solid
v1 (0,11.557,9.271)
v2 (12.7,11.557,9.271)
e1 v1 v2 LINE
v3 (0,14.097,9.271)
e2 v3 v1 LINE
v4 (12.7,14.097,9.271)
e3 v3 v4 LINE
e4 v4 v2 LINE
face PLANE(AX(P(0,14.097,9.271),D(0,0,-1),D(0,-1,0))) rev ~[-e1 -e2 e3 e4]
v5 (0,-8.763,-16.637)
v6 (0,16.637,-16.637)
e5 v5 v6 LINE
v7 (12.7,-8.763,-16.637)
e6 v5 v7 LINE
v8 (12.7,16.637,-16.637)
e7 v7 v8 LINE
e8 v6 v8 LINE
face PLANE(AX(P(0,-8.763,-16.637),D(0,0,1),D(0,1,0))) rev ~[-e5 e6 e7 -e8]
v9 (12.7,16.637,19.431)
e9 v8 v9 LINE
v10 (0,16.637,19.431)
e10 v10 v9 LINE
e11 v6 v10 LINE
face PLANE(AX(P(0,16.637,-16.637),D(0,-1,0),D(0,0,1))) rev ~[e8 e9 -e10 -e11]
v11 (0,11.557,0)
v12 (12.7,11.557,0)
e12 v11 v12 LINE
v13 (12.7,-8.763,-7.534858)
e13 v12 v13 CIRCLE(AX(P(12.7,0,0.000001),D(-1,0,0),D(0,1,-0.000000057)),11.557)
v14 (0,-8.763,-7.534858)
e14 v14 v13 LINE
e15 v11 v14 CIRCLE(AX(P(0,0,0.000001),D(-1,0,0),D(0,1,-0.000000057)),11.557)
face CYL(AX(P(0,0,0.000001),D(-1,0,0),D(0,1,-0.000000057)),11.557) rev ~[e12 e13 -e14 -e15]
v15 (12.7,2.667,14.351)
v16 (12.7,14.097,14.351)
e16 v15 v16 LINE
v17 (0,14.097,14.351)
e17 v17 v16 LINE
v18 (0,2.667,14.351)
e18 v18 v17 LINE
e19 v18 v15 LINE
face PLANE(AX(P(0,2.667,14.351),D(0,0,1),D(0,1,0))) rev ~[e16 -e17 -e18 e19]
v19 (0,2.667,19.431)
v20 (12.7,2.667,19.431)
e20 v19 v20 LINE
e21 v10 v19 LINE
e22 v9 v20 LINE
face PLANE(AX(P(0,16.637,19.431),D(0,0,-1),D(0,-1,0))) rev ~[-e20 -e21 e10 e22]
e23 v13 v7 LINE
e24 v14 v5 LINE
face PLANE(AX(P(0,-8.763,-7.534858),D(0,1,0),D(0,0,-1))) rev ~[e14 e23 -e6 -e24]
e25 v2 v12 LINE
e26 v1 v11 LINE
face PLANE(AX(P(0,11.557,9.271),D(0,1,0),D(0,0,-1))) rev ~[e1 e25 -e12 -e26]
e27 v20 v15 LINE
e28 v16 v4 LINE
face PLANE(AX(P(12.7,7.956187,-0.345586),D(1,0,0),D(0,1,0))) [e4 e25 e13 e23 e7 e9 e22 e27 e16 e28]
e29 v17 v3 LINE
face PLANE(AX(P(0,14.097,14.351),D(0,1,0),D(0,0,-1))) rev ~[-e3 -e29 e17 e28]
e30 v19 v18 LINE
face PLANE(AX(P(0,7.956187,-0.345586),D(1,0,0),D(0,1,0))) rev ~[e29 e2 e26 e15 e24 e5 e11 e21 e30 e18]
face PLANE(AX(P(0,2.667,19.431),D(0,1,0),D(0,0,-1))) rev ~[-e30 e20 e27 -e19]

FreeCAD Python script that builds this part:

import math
import FreeCAD as App
import Part
import Sketcher
Q = App.Units.Quantity

doc = App.newDocument("Part")
body = doc.addObject("PartDesign::Body", "Body")

sketch1 = doc.addObject("Sketcher::SketchObject", "Sketch")
body.addObject(sketch1)
sketch1.AttachmentSupport = (doc.YZ_Plane, [""])
sketch1.MapMode = "FlatFace"
sketch1.addGeometry(Part.ArcOfCircle(Part.Circle(App.Vector(0, 0, 0), App.Vector(0, 0, 1), 11.6), math.radians(-139), math.radians(0)), False)
sketch1.addGeometry(Part.LineSegment(App.Vector(-8.8, -7.5, 0), App.Vector(-8.8, -16.6, 0)), False)
sketch1.addGeometry(Part.LineSegment(App.Vector(-8.8, -16.6, 0), App.Vector(16.6, -16.6, 0)), False)
sketch1.addGeometry(Part.LineSegment(App.Vector(16.6, -16.6, 0), App.Vector(16.6, 19.4, 0)), False)
sketch1.addGeometry(Part.LineSegment(App.Vector(16.6, 19.4, 0), App.Vector(2.7, 19.4, 0)), False)
sketch1.addGeometry(Part.LineSegment(App.Vector(2.7, 19.4, 0), App.Vector(2.7, 14.4, 0)), False)
sketch1.addGeometry(Part.LineSegment(App.Vector(2.7, 14.4, 0), App.Vector(14.1, 14.4, 0)), False)
sketch1.addGeometry(Part.LineSegment(App.Vector(14.1, 14.4, 0), App.Vector(14.1, 9.3, 0)), False)
sketch1.addGeometry(Part.LineSegment(App.Vector(14.1, 9.3, 0), App.Vector(11.6, 9.3, 0)), False)
sketch1.addGeometry(Part.LineSegment(App.Vector(11.6, 9.3, 0), App.Vector(11.6, 0, 0)), False)
sketch1.addConstraint(Sketcher.Constraint("Coincident", 0, 1, 1, 1))
sketch1.addConstraint(Sketcher.Constraint("Coincident", 1, 2, 2, 1))
sketch1.addConstraint(Sketcher.Constraint("Coincident", 2, 2, 3, 1))
sketch1.addConstraint(Sketcher.Constraint("Coincident", 3, 2, 4, 1))
sketch1.addConstraint(Sketcher.Constraint("Coincident", 4, 2, 5, 1))
sketch1.addConstraint(Sketcher.Constraint("Coincident", 5, 2, 6, 1))
sketch1.addConstraint(Sketcher.Constraint("Coincident", 6, 2, 7, 1))
sketch1.addConstraint(Sketcher.Constraint("Coincident", 7, 2, 8, 1))
sketch1.addConstraint(Sketcher.Constraint("Coincident", 8, 2, 9, 1))
sketch1.addConstraint(Sketcher.Constraint("Tangent", 9, 2, 0, 2))
sketch1.addConstraint(Sketcher.Constraint("Vertical", 1))
sketch1.addConstraint(Sketcher.Constraint("Horizontal", 2))
sketch1.addConstraint(Sketcher.Constraint("Vertical", 3))
sketch1.addConstraint(Sketcher.Constraint("Horizontal", 4))
sketch1.addConstraint(Sketcher.Constraint("Vertical", 5))
sketch1.addConstraint(Sketcher.Constraint("Horizontal", 6))
sketch1.addConstraint(Sketcher.Constraint("Vertical", 7))
sketch1.addConstraint(Sketcher.Constraint("Horizontal", 8))
sketch1.addConstraint(Sketcher.Constraint("Vertical", 9))
sketch1.addConstraint(Sketcher.Constraint("Coincident", 0, 3, -1, 1))
sketch1.addConstraint(Sketcher.Constraint("Equal", 5, 7))
sketch1.addConstraint(Sketcher.Constraint("DistanceX", 2, 1, 2, 2, Q("1 in")))
sketch1.addConstraint(Sketcher.Constraint("DistanceX", 8, 2, 8, 1, Q("0.1 in")))
sketch1.addConstraint(Sketcher.Constraint("DistanceY", 5, 2, 5, 1, Q("0.2 in")))
sketch1.addConstraint(Sketcher.Constraint("Radius", 0, Q("0.455 in")))
sketch1.addConstraint(Sketcher.Constraint("DistanceX", 4, 2, 4, 1, Q("0.55 in")))
sketch1.addConstraint(Sketcher.Constraint("DistanceX", 6, 1, 6, 2, Q("0.45 in")))
sketch1.addConstraint(Sketcher.Constraint("DistanceY", 3, 1, 3, 2, Q("1.42 in")))
sketch1.addConstraint(Sketcher.Constraint("DistanceY", 9, 2, 9, 1, Q("0.365 in")))
pad1 = doc.addObject("PartDesign::Pad", "Pad")
body.addObject(pad1)
pad1.Profile = sketch1
pad1.Length = Q("0.5 in")

doc.recompute()
